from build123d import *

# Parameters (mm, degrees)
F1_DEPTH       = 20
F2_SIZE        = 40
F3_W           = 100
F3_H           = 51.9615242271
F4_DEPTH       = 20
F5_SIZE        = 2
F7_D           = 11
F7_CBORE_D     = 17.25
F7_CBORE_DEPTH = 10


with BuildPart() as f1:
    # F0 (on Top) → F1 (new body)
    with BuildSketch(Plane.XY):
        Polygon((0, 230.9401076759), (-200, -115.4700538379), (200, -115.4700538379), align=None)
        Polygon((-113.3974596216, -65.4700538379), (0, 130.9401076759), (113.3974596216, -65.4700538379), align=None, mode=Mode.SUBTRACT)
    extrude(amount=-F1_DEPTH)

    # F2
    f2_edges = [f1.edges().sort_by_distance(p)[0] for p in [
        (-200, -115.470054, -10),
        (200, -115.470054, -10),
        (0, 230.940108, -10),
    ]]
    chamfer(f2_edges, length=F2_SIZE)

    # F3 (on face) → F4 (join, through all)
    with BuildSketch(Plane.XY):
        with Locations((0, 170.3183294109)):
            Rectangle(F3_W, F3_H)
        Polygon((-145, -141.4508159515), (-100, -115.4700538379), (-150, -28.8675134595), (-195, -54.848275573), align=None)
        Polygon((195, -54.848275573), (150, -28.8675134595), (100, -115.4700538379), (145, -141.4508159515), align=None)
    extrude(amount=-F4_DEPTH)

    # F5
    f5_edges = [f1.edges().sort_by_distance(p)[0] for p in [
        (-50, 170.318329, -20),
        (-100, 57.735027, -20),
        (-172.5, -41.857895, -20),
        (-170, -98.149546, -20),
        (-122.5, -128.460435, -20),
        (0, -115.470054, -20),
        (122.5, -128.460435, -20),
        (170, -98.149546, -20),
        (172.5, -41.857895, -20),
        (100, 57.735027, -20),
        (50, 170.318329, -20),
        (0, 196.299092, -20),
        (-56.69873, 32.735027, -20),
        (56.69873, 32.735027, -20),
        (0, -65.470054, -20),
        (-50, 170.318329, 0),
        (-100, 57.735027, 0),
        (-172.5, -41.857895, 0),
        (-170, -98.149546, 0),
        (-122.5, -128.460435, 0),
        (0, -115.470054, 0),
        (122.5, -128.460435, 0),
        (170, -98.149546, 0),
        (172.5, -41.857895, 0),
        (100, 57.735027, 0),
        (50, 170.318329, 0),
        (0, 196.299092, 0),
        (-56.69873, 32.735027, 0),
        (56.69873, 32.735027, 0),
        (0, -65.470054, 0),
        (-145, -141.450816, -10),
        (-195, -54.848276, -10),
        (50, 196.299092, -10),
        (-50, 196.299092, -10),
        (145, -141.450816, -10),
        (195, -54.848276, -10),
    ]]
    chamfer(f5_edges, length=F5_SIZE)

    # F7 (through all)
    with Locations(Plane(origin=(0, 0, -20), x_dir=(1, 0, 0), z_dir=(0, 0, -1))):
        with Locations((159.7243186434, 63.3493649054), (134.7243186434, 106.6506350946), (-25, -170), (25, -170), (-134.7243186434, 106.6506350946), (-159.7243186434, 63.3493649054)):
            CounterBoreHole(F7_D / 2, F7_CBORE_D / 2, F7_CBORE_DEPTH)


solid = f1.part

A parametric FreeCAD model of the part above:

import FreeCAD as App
import Part
import Sketcher
Q = App.Units.Quantity


def edges_at(feature, points):
    """Names of the edges that pass closest to the given points."""
    edges = feature.Shape.Edges
    near = lambda p: min(range(len(edges)), key=lambda i: edges[i].distToShape(Part.Vertex(*p))[0])
    return sorted({f"Edge{near(p) + 1}" for p in points})


def add_polygon(sketch, points):
    """Adds a closed chain of lines whose ends are joined by coincident constraints."""
    first, n = sketch.GeometryCount, len(points)
    for a, b in zip(points, points[1:] + points[:1]):
        sketch.addGeometry(Part.LineSegment(App.Vector(*a, 0), App.Vector(*b, 0)), False)
    for i in range(n):
        sketch.addConstraint(Sketcher.Constraint("Coincident", first + i, 2, first + (i + 1) % n, 1))

doc = App.newDocument("Part")
body = doc.addObject("PartDesign::Body", "Body")

# Sketch on XY plane
sketch1 = body.newObject("Sketcher::SketchObject", "Sketch")
sketch1.AttachmentSupport = (doc.getObject("XY_Plane"), [""])
sketch1.MapMode = "FlatFace"
add_polygon(sketch1, [(0, 231), (-200, -115), (200, -115)])  # lines 0-2
add_polygon(sketch1, [(113, -65), (-113, -65), (0, 131)])  # lines 3-5
sketch1.addConstraint([
    Sketcher.Constraint("Horizontal", 1),
    Sketcher.Constraint("Horizontal", 3),
    Sketcher.Constraint("PointOnObject", 2, 2, -2),
    Sketcher.Constraint("PointOnObject", 4, 2, -2),
    Sketcher.Constraint("Parallel", 0, 4),
    Sketcher.Constraint("Parallel", 2, 5),
    Sketcher.Constraint("Equal", 0, 2),
    Sketcher.Constraint("DistanceX", 1, 1, 1, 2, Q("400 mm")),
    Sketcher.Constraint("Angle", 0, Q("-120 deg")),
    Sketcher.Constraint("DistanceY", 0, 2, 3, 2, Q("50 mm")),
    Sketcher.Constraint("DistanceY", 4, 2, 2, 2, Q("100 mm")),
    Sketcher.Constraint("DistanceY", 0, 2, -1, 1, Q("115.470054 mm")),
])
pad1 = body.newObject("PartDesign::Pad", "Pad")
pad1.Profile = sketch1
pad1.Length = 20
pad1.Reversed = True
doc.recompute()

chamfer = body.newObject("PartDesign::Chamfer", "Chamfer")
chamfer.Base = (pad1, edges_at(pad1, [(-200, -115.47, -10), (200, -115.47, -10), (0, 230.94, -10)]))
chamfer.Size = 40

# Sketch on XY plane
sketch2 = body.newObject("Sketcher::SketchObject", "Sketch001")
sketch2.AttachmentSupport = (doc.getObject("XY_Plane"), [""])
sketch2.MapMode = "FlatFace"
add_polygon(sketch2, [(-50, 196), (-50, 144), (50, 144), (50, 196)])  # lines 0-3
add_polygon(sketch2, [(-145, -141), (-100, -115), (-150, -29), (-195, -55)])  # lines 4-7
add_polygon(sketch2, [(195, -55), (150, -29), (100, -115), (145, -141)])  # lines 8-11
sketch2.addConstraint([
    Sketcher.Constraint("Vertical", 0),
    Sketcher.Constraint("Horizontal", 1),
    Sketcher.Constraint("Vertical", 2),
    Sketcher.Constraint("Horizontal", 3),
    Sketcher.Constraint("Symmetric", 5, 2, 8, 2, -2),
    Sketcher.Constraint("Symmetric", 4, 2, 9, 2, -2),
    Sketcher.Constraint("Symmetric", 7, 2, 10, 2, -2),
    Sketcher.Constraint("Symmetric", 6, 2, 11, 2, -2),
    Sketcher.Constraint("Perpendicular", 4, 5),
    Sketcher.Constraint("Perpendicular", 5, 6),
    Sketcher.Constraint("Perpendicular", 6, 7),
    Sketcher.Constraint("DistanceX", 1, 1, 1, 2, Q("100 mm")),
    Sketcher.Constraint("Angle", 4, Q("30 deg")),
    Sketcher.Constraint("Distance", 5, Q("100 mm")),
    Sketcher.Constraint("DistanceX", 0, 2, -1, 1, Q("50 mm")),
    Sketcher.Constraint("DistanceX", 4, 2, -1, 1, Q("100 mm")),
    Sketcher.Constraint("DistanceX", 6, 2, -1, 1, Q("195 mm")),
    Sketcher.Constraint("DistanceY", 0, 2, 0, 1, Q("51.961524 mm")),
    Sketcher.Constraint("DistanceY", -1, 1, 2, 2, Q("196.299092 mm")),
    Sketcher.Constraint("DistanceY", 4, 2, 0, 2, Q("259.807621 mm")),
])
pad2 = body.newObject("PartDesign::Pad", "Pad001")
pad2.Profile = sketch2
pad2.Length = 20
pad2.Reversed = True
doc.recompute()

chamfer2 = body.newObject("PartDesign::Chamfer", "Chamfer001")
chamfer2.Base = (pad2, edges_at(pad2, [
    (-50, 170.318, -20),
    (-100, 57.735, -20),
    (-172.5, -41.858, -20),
    (-170, -98.15, -20),
    (-122.5, -128.46, -20),
    (0, -115.47, -20),
    (122.5, -128.46, -20),
    (170, -98.15, -20),
    (172.5, -41.858, -20),
    (100, 57.735, -20),
    (50, 170.318, -20),
    (0, 196.299, -20),
    (-56.699, 32.735, -20),
    (56.699, 32.735, -20),
    (0, -65.47, -20),
    (-50, 170.318, 0),
    (-100, 57.735, 0),
    (-172.5, -41.858, 0),
    (-170, -98.15, 0),
    (-122.5, -128.46, 0),
    (0, -115.47, 0),
    (122.5, -128.46, 0),
    (170, -98.15, 0),
    (172.5, -41.858, 0),
    (100, 57.735, 0),
    (50, 170.318, 0),
    (0, 196.299, 0),
    (-56.699, 32.735, 0),
    (56.699, 32.735, 0),
    (0, -65.47, 0),
    (-145, -141.451, -10),
    (-195, -54.848, -10),
    (50, 196.299, -10),
    (-50, 196.299, -10),
    (145, -141.451, -10),
    (195, -54.848, -10),
]))
chamfer2.Size = 2

# Sketch on XY plane
sketch3 = body.newObject("Sketcher::SketchObject", "Sketch002")
sketch3.AttachmentSupport = (doc.getObject("XY_Plane"), [""])
sketch3.MapMode = "FlatFace"
sketch3.AttachmentOffset = App.Placement(App.Vector(0, 0, -20), App.Rotation())
sketch3.addGeometry([
    Part.Circle(App.Vector(160, -63, 0), App.Vector(0, 0, 1), 6),  # 0
    Part.Circle(App.Vector(135, -107, 0), App.Vector(0, 0, 1), 6),  # 1
    Part.Circle(App.Vector(-25, 170, 0), App.Vector(0, 0, 1), 6),  # 2
    Part.Circle(App.Vector(25, 170, 0), App.Vector(0, 0, 1), 6),  # 3
    Part.Circle(App.Vector(-135, -107, 0), App.Vector(0, 0, 1), 6),  # 4
    Part.Circle(App.Vector(-160, -63, 0), App.Vector(0, 0, 1), 6),  # 5
], False)
sketch3.addConstraint([
    Sketcher.Constraint("Equal", 0, 1),
    Sketcher.Constraint("Equal", 1, 2),
    Sketcher.Constraint("Equal", 2, 3),
    Sketcher.Constraint("Equal", 3, 4),
    Sketcher.Constraint("Equal", 4, 5),
    Sketcher.Constraint("Symmetric", 2, 3, 3, 3, -2),
    Sketcher.Constraint("Symmetric", 1, 3, 4, 3, -2),
    Sketcher.Constraint("Symmetric", 0, 3, 5, 3, -2),
    Sketcher.Constraint("Diameter", 0, Q("11 mm")),
    Sketcher.Constraint("DistanceX", 2, 3, -1, 1, Q("25 mm")),
    Sketcher.Constraint("DistanceY", -1, 1, 2, 3, Q("170 mm")),
    Sketcher.Constraint("DistanceX", 1, 3, 0, 3, Q("25 mm")),
    Sketcher.Constraint("DistanceX", -1, 1, 0, 3, Q("159.724319 mm")),
    Sketcher.Constraint("DistanceY", 1, 3, 0, 3, Q("43.30127 mm")),
    Sketcher.Constraint("DistanceY", 0, 3, -1, 1, Q("63.349365 mm")),
])
doc.recompute()
hole = body.newObject("PartDesign::Hole", "Hole")
hole.Profile = sketch3
hole.ThreadType = "None"
hole.Diameter = 11
hole.DepthType = "ThroughAll"
hole.HoleCutType = "Counterbore"
hole.HoleCutDiameter = 17.25
hole.HoleCutDepth = 10
hole.Reversed = True

doc.recompute()
